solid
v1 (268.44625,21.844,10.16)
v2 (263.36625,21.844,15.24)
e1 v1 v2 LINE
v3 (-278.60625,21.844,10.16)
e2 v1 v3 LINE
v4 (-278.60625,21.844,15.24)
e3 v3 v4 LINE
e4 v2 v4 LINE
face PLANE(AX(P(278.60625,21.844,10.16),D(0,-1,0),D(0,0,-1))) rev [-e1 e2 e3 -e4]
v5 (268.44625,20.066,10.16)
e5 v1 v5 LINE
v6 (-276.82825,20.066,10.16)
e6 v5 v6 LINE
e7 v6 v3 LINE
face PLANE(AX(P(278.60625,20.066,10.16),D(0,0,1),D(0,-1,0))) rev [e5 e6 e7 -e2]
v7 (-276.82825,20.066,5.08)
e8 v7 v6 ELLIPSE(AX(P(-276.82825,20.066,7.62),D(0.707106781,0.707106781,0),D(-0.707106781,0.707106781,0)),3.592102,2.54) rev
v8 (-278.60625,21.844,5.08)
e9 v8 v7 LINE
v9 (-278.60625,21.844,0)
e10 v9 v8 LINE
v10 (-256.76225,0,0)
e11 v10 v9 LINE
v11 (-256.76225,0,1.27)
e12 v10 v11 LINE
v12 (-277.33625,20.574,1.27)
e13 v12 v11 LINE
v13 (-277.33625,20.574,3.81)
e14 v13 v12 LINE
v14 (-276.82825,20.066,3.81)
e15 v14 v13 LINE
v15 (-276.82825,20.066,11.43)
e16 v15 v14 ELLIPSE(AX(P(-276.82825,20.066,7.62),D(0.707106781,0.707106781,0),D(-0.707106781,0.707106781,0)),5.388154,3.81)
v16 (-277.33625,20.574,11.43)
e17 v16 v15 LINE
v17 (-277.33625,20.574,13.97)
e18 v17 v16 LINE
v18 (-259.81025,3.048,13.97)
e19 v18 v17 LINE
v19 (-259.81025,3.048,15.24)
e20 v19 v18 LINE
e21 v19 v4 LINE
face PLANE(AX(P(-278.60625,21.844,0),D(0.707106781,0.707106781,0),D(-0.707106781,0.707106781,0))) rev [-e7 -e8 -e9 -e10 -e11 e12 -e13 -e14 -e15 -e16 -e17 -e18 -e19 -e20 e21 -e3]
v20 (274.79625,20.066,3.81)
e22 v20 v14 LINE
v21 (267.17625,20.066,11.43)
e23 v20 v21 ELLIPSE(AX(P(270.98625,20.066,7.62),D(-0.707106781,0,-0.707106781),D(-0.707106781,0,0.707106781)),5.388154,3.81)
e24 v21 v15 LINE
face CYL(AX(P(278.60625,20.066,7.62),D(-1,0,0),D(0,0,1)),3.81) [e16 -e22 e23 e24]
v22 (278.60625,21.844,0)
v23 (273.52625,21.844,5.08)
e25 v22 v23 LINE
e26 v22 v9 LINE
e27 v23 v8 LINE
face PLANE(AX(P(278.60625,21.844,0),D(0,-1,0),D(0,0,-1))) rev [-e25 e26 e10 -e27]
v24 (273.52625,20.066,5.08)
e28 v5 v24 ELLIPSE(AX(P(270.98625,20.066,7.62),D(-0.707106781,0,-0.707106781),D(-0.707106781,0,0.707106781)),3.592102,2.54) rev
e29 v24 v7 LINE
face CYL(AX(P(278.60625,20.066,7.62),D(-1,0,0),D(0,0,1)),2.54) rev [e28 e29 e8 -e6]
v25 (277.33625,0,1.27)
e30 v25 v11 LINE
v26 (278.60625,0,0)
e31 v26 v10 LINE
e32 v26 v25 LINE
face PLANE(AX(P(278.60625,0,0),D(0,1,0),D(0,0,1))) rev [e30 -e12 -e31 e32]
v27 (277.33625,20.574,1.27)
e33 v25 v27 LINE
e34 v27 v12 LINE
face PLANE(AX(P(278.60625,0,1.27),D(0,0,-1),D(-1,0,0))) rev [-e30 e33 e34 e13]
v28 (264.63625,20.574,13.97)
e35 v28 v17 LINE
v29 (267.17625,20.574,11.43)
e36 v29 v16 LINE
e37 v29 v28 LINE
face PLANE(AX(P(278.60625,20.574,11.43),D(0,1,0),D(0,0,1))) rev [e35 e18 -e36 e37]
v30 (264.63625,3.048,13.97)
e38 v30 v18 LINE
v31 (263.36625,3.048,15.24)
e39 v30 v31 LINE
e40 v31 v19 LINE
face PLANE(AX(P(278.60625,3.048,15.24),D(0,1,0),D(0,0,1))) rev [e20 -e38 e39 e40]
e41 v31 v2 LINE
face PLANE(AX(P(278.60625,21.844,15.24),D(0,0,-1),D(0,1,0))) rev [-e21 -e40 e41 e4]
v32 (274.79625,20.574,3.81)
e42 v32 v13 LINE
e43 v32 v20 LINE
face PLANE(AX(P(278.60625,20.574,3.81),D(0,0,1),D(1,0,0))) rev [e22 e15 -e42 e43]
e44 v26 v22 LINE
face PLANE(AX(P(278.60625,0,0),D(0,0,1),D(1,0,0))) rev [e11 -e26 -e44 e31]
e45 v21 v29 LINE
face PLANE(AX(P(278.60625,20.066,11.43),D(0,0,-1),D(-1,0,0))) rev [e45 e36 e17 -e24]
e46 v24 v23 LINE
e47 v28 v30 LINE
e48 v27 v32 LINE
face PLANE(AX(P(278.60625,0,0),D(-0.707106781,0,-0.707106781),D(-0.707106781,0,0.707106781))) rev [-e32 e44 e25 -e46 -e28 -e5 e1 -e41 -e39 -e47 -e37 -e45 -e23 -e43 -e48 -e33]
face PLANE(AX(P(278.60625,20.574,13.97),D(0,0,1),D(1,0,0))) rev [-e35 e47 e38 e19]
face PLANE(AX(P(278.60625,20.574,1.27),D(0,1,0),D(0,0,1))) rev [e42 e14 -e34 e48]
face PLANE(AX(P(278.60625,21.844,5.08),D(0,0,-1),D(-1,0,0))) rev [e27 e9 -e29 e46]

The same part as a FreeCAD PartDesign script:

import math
import FreeCAD as App
import Part
import Sketcher
Q = App.Units.Quantity


def add_polygon(sketch, points):
    """Adds a closed chain of lines whose ends are joined by coincident constraints."""
    first, n = sketch.GeometryCount, len(points)
    for a, b in zip(points, points[1:] + points[:1]):
        sketch.addGeometry(Part.LineSegment(App.Vector(*a, 0), App.Vector(*b, 0)), False)
    for i in range(n):
        sketch.addConstraint(Sketcher.Constraint("Coincident", first + i, 2, first + (i + 1) % n, 1))

doc = App.newDocument("Part")
params = doc.addObject("Spreadsheet::Sheet", "Params")
for row, (alias, value) in enumerate([
    ("sketch1_radius", "0.1 in"),
    ("sketch1_radius2", "0.15 in"),
    ("sketch1_height", "0.2 in"),
    ("sketch1_height2", "0.1 in"),
    ("sketch1_width", "0.86 in"),
    ("pad1_length", "21.9375 in"),
    ("sketch2_width", "0.86 in"),
    ("sketch3_width", "0.6 in"),
], start=1):
    params.set(f"A{row}", alias)
    params.set(f"B{row}", "=" + value)
    params.setAlias(f"B{row}", alias)

body = doc.addObject("PartDesign::Body", "Body")

sketch1 = doc.addObject("Sketcher::SketchObject", "Sketch")
body.addObject(sketch1)
sketch1.AttachmentSupport = (doc.YZ_Plane, [""])
sketch1.MapMode = "FlatFace"
sketch1.addGeometry([
    Part.LineSegment(App.Vector(0, 0, 0), App.Vector(21.8, 0, 0)),
    Part.LineSegment(App.Vector(21.8, 0, 0), App.Vector(21.8, 5.1, 0)),
    Part.LineSegment(App.Vector(21.8, 5.1, 0), App.Vector(20.1, 5.1, 0)),
    Part.ArcOfCircle(Part.Circle(App.Vector(20.1, 7.6, 0), App.Vector(0, 0, 1), 2.5), math.radians(90), math.radians(270)),
    Part.LineSegment(App.Vector(20.1, 10.2, 0), App.Vector(21.8, 10.2, 0)),
    Part.LineSegment(App.Vector(21.8, 10.2, 0), App.Vector(21.8, 15.2, 0)),
    Part.LineSegment(App.Vector(21.8, 15.2, 0), App.Vector(3, 15.2, 0)),
    Part.LineSegment(App.Vector(3, 15.2, 0), App.Vector(3, 14, 0)),
    Part.LineSegment(App.Vector(3, 14, 0), App.Vector(20.6, 14, 0)),
    Part.LineSegment(App.Vector(20.6, 14, 0), App.Vector(20.6, 11.4, 0)),
    Part.LineSegment(App.Vector(20.6, 11.4, 0), App.Vector(20.1, 11.4, 0)),
    Part.ArcOfCircle(Part.Circle(App.Vector(20.1, 7.6, 0), App.Vector(0, 0, 1), 3.8), math.radians(90), math.radians(270)),
    Part.LineSegment(App.Vector(20.1, 3.8, 0), App.Vector(20.6, 3.8, 0)),
    Part.LineSegment(App.Vector(20.6, 3.8, 0), App.Vector(20.6, 1.3, 0)),
    Part.LineSegment(App.Vector(20.6, 1.3, 0), App.Vector(0, 1.3, 0)),
    Part.LineSegment(App.Vector(0, 1.3, 0), App.Vector(0, 0, 0)),
], False)
sketch1.addConstraint([
    Sketcher.Constraint("Coincident", 0, 2, 1, 1),
    Sketcher.Constraint("Coincident", 1, 2, 2, 1),
    Sketcher.Constraint("Tangent", 2, 2, 3, 2),
    Sketcher.Constraint("Tangent", 3, 1, 4, 1),
    Sketcher.Constraint("Coincident", 4, 2, 5, 1),
    Sketcher.Constraint("Coincident", 5, 2, 6, 1),
    Sketcher.Constraint("Coincident", 6, 2, 7, 1),
    Sketcher.Constraint("Coincident", 7, 2, 8, 1),
    Sketcher.Constraint("Coincident", 8, 2, 9, 1),
    Sketcher.Constraint("Coincident", 9, 2, 10, 1),
    Sketcher.Constraint("Tangent", 10, 2, 11, 1),
    Sketcher.Constraint("Tangent", 11, 2, 12, 1),
    Sketcher.Constraint("Coincident", 12, 2, 13, 1),
    Sketcher.Constraint("Coincident", 13, 2, 14, 1),
    Sketcher.Constraint("Coincident", 14, 2, 15, 1),
    Sketcher.Constraint("Coincident", 15, 2, 0, 1),
    Sketcher.Constraint("Horizontal", 0),
    Sketcher.Constraint("Vertical", 1),
    Sketcher.Constraint("Horizontal", 2),
    Sketcher.Constraint("Horizontal", 4),
    Sketcher.Constraint("Vertical", 5),
    Sketcher.Constraint("Horizontal", 6),
    Sketcher.Constraint("Vertical", 7),
    Sketcher.Constraint("Horizontal", 8),
    Sketcher.Constraint("Vertical", 9),
    Sketcher.Constraint("Horizontal", 10),
    Sketcher.Constraint("Horizontal", 12),
    Sketcher.Constraint("Vertical", 13),
    Sketcher.Constraint("Horizontal", 14),
    Sketcher.Constraint("Vertical", 15),
    Sketcher.Constraint("Coincident", 15, 2, -1, 1),
    Sketcher.Constraint("Coincident", 11, 3, 3, 3),
    Sketcher.Constraint("Vertical", 1, 2, 4, 2),
    Sketcher.Constraint("Vertical", 9, 2, 12, 2),
    Sketcher.Constraint("Equal", 1, 5),
    Sketcher.Constraint("Equal", 9, 13),
    Sketcher.Constraint("Radius", 3, Q("0.1 in")),
    Sketcher.Constraint("Radius", 11, Q("0.15 in")),
    Sketcher.Constraint("DistanceY", 1, 1, 1, 2, Q("0.2 in")),
    Sketcher.Constraint("DistanceY", 9, 2, 9, 1, Q("0.1 in")),
    Sketcher.Constraint("DistanceX", 0, 1, 0, 2, Q("0.86 in")),
    Sketcher.Constraint("DistanceX", 2, 2, 2, 1, Q("0.07 in")),
    Sketcher.Constraint("DistanceX", 6, 2, 6, 1, Q("0.74 in")),
    Sketcher.Constraint("DistanceX", 8, 1, 8, 2, Q("0.69 in")),
])
sketch1.setExpression("Constraints[36]", "Params.sketch1_radius")
sketch1.setExpression("Constraints[37]", "Params.sketch1_radius2")
sketch1.setExpression("Constraints[38]", "Params.sketch1_height")
sketch1.setExpression("Constraints[39]", "Params.sketch1_height2")
sketch1.setExpression("Constraints[40]", "Params.sketch1_width")
pad1 = doc.addObject("PartDesign::Pad", "Pad")
body.addObject(pad1)
pad1.Profile = sketch1
pad1.setExpression("Length", "Params.pad1_length")
pad1.Midplane = True

sketch2 = doc.addObject("Sketcher::SketchObject", "Sketch001")
body.addObject(sketch2)
sketch2.AttachmentSupport = (doc.XY_Plane, [""])
sketch2.MapMode = "FlatFace"
sketch2.AttachmentOffset = App.Placement(App.Vector(0, 0, 0.6 * 25.4), App.Rotation())
add_polygon(sketch2, [(-257, 0), (-279, 22), (-279, 0)])
sketch2.addConstraint([
    Sketcher.Constraint("Vertical", 1),
    Sketcher.Constraint("Horizontal", 2),
    Sketcher.Constraint("PointOnObject", 1, 2, -1),
    Sketcher.Constraint("Equal", 2, 1),
    Sketcher.Constraint("DistanceX", 2, 1, 2, 2, Q("0.86 in")),
    Sketcher.Constraint("DistanceX", 0, 2, -1, 1, Q("10.96875 in")),
])
sketch2.setExpression("Constraints[7]", "Params.sketch2_width")
pocket1 = doc.addObject("PartDesign::Pocket", "Pocket")
body.addObject(pocket1)
pocket1.Profile = sketch2
pocket1.Type = "ThroughAll"

sketch3 = doc.addObject("Sketcher::SketchObject", "Sketch002")
body.addObject(sketch3)
sketch3.AttachmentSupport = (doc.XZ_Plane, [""])
sketch3.MapMode = "FlatFace"
sketch3.AttachmentOffset = App.Placement(App.Vector(0, 0, -0.86 * 25.4), App.Rotation())
add_polygon(sketch3, [(279, 0), (263, 15), (279, 15)])
sketch3.addConstraint([
    Sketcher.Constraint("Horizontal", 1),
    Sketcher.Constraint("Vertical", 2),
    Sketcher.Constraint("PointOnObject", 2, 2, -1),
    Sketcher.Constraint("Equal", 1, 2),
    Sketcher.Constraint("DistanceX", 1, 1, 1, 2, Q("0.6 in")),
    Sketcher.Constraint("DistanceX", -1, 1, 1, 2, Q("10.96875 in")),
])
sketch3.setExpression("Constraints[7]", "Params.sketch3_width")
pocket2 = doc.addObject("PartDesign::Pocket", "Pocket001")
body.addObject(pocket2)
pocket2.Profile = sketch3
pocket2.Type = "ThroughAll"
pocket2.Reversed = True

doc.recompute()
